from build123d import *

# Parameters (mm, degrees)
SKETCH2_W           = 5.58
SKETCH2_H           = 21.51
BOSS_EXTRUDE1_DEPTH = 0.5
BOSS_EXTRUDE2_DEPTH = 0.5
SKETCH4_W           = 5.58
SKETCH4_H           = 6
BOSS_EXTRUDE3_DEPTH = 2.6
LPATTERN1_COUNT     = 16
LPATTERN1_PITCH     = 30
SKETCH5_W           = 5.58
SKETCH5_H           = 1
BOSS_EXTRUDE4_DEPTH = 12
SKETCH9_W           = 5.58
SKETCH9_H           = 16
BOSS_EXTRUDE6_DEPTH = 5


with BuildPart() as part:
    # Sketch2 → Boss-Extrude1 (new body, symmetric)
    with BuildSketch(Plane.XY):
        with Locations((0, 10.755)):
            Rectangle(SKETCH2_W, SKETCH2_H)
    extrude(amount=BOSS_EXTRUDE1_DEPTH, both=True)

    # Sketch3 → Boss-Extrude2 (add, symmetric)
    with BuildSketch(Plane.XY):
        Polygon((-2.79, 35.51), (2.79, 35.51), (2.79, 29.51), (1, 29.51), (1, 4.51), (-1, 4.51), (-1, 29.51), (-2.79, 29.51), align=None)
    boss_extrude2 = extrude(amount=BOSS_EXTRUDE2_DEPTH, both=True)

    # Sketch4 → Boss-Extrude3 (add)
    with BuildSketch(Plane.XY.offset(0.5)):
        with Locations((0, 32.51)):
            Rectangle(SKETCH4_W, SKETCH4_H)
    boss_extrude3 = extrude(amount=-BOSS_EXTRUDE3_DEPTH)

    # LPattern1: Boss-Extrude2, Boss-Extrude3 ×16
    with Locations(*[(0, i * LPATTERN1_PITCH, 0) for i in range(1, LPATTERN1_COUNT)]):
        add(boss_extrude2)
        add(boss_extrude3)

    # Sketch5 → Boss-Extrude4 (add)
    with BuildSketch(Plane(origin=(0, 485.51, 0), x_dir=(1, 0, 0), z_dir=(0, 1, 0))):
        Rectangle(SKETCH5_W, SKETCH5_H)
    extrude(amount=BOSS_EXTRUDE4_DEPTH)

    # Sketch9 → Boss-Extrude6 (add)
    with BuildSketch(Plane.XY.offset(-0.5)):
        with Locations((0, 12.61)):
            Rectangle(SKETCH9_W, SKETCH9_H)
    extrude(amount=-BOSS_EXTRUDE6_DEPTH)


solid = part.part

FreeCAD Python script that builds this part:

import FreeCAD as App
import Part
import Sketcher
from FreeCAD import Vector
Q = App.Units.Quantity


def add_polygon(sketch, points):
    """Adds a closed chain of lines whose ends are joined by coincident constraints."""
    first, n = sketch.GeometryCount, len(points)
    for a, b in zip(points, points[1:] + points[:1]):
        sketch.addGeometry(Part.LineSegment(App.Vector(*a, 0), App.Vector(*b, 0)), False)
    for i in range(n):
        sketch.addConstraint(Sketcher.Constraint("Coincident", first + i, 2, first + (i + 1) % n, 1))

doc = App.newDocument("Part")
body = doc.addObject("PartDesign::Body", "Body")

# Sketch on XY plane
sketch1 = doc.addObject("Sketcher::SketchObject", "Sketch")
body.addObject(sketch1)
sketch1.AttachmentSupport = (doc.XY_Plane, [""])
sketch1.MapMode = "FlatFace"
add_polygon(sketch1, [(-3, 22), (-3, 0), (3, 0), (3, 22)])  # lines 0-3
sketch1.addConstraint(Sketcher.Constraint("Vertical", 0))
sketch1.addConstraint(Sketcher.Constraint("Horizontal", 1))
sketch1.addConstraint(Sketcher.Constraint("Vertical", 2))
sketch1.addConstraint(Sketcher.Constraint("Horizontal", 3))
sketch1.addConstraint(Sketcher.Constraint("Symmetric", 0, 2, 1, 2, -1, 1))
sketch1.addConstraint(Sketcher.Constraint("DistanceX", 1, 1, 1, 2, Q("5.58 mm")))
sketch1.addConstraint(Sketcher.Constraint("DistanceY", 0, 2, 0, 1, Q("21.51 mm")))
pad1 = doc.addObject("PartDesign::Pad", "Pad")
body.addObject(pad1)
pad1.Profile = sketch1
pad1.Length = 1
pad1.Midplane = True

# Sketch on XY plane
sketch2 = doc.addObject("Sketcher::SketchObject", "Sketch001")
body.addObject(sketch2)
sketch2.AttachmentSupport = (doc.XY_Plane, [""])
sketch2.MapMode = "FlatFace"
add_polygon(sketch2, [(2.8, 35.5), (-2.8, 35.5), (-2.8, 29.5), (-1, 29.5), (-1, 4.5), (1, 4.5), (1, 29.5), (2.8, 29.5)])  # lines 0-7
sketch2.addConstraint(Sketcher.Constraint("Horizontal", 0))
sketch2.addConstraint(Sketcher.Constraint("Vertical", 1))
sketch2.addConstraint(Sketcher.Constraint("Horizontal", 2))
sketch2.addConstraint(Sketcher.Constraint("Vertical", 3))
sketch2.addConstraint(Sketcher.Constraint("Horizontal", 4))
sketch2.addConstraint(Sketcher.Constraint("Vertical", 5))
sketch2.addConstraint(Sketcher.Constraint("Horizontal", 6))
sketch2.addConstraint(Sketcher.Constraint("Vertical", 7))
sketch2.addConstraint(Sketcher.Constraint("Symmetric", 2, 2, 5, 2, -2))
sketch2.addConstraint(Sketcher.Constraint("Equal", 2, 6))
sketch2.addConstraint(Sketcher.Constraint("DistanceX", 4, 1, 4, 2, Q("2 mm")))
sketch2.addConstraint(Sketcher.Constraint("DistanceY", 1, 2, 1, 1, Q("6 mm")))
sketch2.addConstraint(Sketcher.Constraint("DistanceY", 3, 2, 3, 1, Q("25 mm")))
sketch2.addConstraint(Sketcher.Constraint("DistanceX", 0, 2, 0, 1, Q("5.58 mm")))
sketch2.addConstraint(Sketcher.Constraint("DistanceY", -1, 1, 0, 2, Q("35.51 mm")))
pad2 = doc.addObject("PartDesign::Pad", "Pad001")
body.addObject(pad2)
pad2.Profile = sketch2
pad2.Length = 1
pad2.Midplane = True

# Sketch on XY plane
sketch3 = doc.addObject("Sketcher::SketchObject", "Sketch002")
body.addObject(sketch3)
sketch3.AttachmentSupport = (doc.XY_Plane, [""])
sketch3.MapMode = "FlatFace"
sketch3.AttachmentOffset = App.Placement(Vector(0, 0, 0.5), App.Rotation())
add_polygon(sketch3, [(-3, 36), (-3, 30), (3, 30), (3, 36)])  # lines 0-3
sketch3.addConstraint(Sketcher.Constraint("Vertical", 0))
sketch3.addConstraint(Sketcher.Constraint("Horizontal", 1))
sketch3.addConstraint(Sketcher.Constraint("Vertical", 2))
sketch3.addConstraint(Sketcher.Constraint("Horizontal", 3))
sketch3.addConstraint(Sketcher.Constraint("DistanceY", 0, 2, 0, 1, Q("6 mm")))
sketch3.addConstraint(Sketcher.Constraint("DistanceX", 1, 1, 1, 2, Q("5.58 mm")))
sketch3.addConstraint(Sketcher.Constraint("DistanceX", 0, 2, -1, 1, Q("2.79 mm")))
sketch3.addConstraint(Sketcher.Constraint("DistanceY", -1, 1, 0, 2, Q("29.51 mm")))
pad3 = doc.addObject("PartDesign::Pad", "Pad002")
body.addObject(pad3)
pad3.Profile = sketch3
pad3.Length = 2.6
pad3.Reversed = True
doc.recompute()

linearpattern = doc.addObject("PartDesign::LinearPattern", "LinearPattern")
body.addObject(linearpattern)
linearpattern.Originals = [pad2, pad3]
linearpattern.Direction = (doc.Y_Axis, [""])
linearpattern.Mode = "offset"
linearpattern.Offset = 30
linearpattern.Occurrences = 16
body.Tip = linearpattern

# Sketch on XZ plane
sketch4 = doc.addObject("Sketcher::SketchObject", "Sketch003")
body.addObject(sketch4)
sketch4.AttachmentSupport = (doc.XZ_Plane, [""])
sketch4.MapMode = "FlatFace"
sketch4.AttachmentOffset = App.Placement(Vector(0, 0, -485.51), App.Rotation())
add_polygon(sketch4, [(-2.8, -0.5), (-2.8, 0.5), (2.8, 0.5), (2.8, -0.5)])  # lines 0-3
sketch4.addConstraint(Sketcher.Constraint("Vertical", 0))
sketch4.addConstraint(Sketcher.Constraint("Horizontal", 1))
sketch4.addConstraint(Sketcher.Constraint("Vertical", 2))
sketch4.addConstraint(Sketcher.Constraint("Horizontal", 3))
sketch4.addConstraint(Sketcher.Constraint("Symmetric", 0, 2, 2, 2, -1, 1))
sketch4.addConstraint(Sketcher.Constraint("DistanceY", 0, 1, 0, 2, Q("1 mm")))
sketch4.addConstraint(Sketcher.Constraint("DistanceX", 1, 1, 1, 2, Q("5.58 mm")))
pad4 = doc.addObject("PartDesign::Pad", "Pad003")
body.addObject(pad4)
pad4.Profile = sketch4
pad4.Length = 12
pad4.Reversed = True

# Sketch on XY plane
sketch5 = doc.addObject("Sketcher::SketchObject", "Sketch004")
body.addObject(sketch5)
sketch5.AttachmentSupport = (doc.XY_Plane, [""])
sketch5.MapMode = "FlatFace"
sketch5.AttachmentOffset = App.Placement(Vector(0, 0, -0.5), App.Rotation())
add_polygon(sketch5, [(-3, 21), (-3, 5), (3, 5), (3, 21)])  # lines 0-3
sketch5.addConstraint(Sketcher.Constraint("Vertical", 0))
sketch5.addConstraint(Sketcher.Constraint("Horizontal", 1))
sketch5.addConstraint(Sketcher.Constraint("Vertical", 2))
sketch5.addConstraint(Sketcher.Constraint("Horizontal", 3))
sketch5.addConstraint(Sketcher.Constraint("DistanceY", 0, 2, 0, 1, Q("16 mm")))
sketch5.addConstraint(Sketcher.Constraint("DistanceX", 1, 1, 1, 2, Q("5.58 mm")))
sketch5.addConstraint(Sketcher.Constraint("DistanceX", 0, 2, -1, 1, Q("2.79 mm")))
sketch5.addConstraint(Sketcher.Constraint("DistanceY", -1, 1, 0, 2, Q("4.61 mm")))
pad5 = doc.addObject("PartDesign::Pad", "Pad004")
body.addObject(pad5)
pad5.Profile = sketch5
pad5.Length = 5
pad5.Reversed = True

doc.recompute()
